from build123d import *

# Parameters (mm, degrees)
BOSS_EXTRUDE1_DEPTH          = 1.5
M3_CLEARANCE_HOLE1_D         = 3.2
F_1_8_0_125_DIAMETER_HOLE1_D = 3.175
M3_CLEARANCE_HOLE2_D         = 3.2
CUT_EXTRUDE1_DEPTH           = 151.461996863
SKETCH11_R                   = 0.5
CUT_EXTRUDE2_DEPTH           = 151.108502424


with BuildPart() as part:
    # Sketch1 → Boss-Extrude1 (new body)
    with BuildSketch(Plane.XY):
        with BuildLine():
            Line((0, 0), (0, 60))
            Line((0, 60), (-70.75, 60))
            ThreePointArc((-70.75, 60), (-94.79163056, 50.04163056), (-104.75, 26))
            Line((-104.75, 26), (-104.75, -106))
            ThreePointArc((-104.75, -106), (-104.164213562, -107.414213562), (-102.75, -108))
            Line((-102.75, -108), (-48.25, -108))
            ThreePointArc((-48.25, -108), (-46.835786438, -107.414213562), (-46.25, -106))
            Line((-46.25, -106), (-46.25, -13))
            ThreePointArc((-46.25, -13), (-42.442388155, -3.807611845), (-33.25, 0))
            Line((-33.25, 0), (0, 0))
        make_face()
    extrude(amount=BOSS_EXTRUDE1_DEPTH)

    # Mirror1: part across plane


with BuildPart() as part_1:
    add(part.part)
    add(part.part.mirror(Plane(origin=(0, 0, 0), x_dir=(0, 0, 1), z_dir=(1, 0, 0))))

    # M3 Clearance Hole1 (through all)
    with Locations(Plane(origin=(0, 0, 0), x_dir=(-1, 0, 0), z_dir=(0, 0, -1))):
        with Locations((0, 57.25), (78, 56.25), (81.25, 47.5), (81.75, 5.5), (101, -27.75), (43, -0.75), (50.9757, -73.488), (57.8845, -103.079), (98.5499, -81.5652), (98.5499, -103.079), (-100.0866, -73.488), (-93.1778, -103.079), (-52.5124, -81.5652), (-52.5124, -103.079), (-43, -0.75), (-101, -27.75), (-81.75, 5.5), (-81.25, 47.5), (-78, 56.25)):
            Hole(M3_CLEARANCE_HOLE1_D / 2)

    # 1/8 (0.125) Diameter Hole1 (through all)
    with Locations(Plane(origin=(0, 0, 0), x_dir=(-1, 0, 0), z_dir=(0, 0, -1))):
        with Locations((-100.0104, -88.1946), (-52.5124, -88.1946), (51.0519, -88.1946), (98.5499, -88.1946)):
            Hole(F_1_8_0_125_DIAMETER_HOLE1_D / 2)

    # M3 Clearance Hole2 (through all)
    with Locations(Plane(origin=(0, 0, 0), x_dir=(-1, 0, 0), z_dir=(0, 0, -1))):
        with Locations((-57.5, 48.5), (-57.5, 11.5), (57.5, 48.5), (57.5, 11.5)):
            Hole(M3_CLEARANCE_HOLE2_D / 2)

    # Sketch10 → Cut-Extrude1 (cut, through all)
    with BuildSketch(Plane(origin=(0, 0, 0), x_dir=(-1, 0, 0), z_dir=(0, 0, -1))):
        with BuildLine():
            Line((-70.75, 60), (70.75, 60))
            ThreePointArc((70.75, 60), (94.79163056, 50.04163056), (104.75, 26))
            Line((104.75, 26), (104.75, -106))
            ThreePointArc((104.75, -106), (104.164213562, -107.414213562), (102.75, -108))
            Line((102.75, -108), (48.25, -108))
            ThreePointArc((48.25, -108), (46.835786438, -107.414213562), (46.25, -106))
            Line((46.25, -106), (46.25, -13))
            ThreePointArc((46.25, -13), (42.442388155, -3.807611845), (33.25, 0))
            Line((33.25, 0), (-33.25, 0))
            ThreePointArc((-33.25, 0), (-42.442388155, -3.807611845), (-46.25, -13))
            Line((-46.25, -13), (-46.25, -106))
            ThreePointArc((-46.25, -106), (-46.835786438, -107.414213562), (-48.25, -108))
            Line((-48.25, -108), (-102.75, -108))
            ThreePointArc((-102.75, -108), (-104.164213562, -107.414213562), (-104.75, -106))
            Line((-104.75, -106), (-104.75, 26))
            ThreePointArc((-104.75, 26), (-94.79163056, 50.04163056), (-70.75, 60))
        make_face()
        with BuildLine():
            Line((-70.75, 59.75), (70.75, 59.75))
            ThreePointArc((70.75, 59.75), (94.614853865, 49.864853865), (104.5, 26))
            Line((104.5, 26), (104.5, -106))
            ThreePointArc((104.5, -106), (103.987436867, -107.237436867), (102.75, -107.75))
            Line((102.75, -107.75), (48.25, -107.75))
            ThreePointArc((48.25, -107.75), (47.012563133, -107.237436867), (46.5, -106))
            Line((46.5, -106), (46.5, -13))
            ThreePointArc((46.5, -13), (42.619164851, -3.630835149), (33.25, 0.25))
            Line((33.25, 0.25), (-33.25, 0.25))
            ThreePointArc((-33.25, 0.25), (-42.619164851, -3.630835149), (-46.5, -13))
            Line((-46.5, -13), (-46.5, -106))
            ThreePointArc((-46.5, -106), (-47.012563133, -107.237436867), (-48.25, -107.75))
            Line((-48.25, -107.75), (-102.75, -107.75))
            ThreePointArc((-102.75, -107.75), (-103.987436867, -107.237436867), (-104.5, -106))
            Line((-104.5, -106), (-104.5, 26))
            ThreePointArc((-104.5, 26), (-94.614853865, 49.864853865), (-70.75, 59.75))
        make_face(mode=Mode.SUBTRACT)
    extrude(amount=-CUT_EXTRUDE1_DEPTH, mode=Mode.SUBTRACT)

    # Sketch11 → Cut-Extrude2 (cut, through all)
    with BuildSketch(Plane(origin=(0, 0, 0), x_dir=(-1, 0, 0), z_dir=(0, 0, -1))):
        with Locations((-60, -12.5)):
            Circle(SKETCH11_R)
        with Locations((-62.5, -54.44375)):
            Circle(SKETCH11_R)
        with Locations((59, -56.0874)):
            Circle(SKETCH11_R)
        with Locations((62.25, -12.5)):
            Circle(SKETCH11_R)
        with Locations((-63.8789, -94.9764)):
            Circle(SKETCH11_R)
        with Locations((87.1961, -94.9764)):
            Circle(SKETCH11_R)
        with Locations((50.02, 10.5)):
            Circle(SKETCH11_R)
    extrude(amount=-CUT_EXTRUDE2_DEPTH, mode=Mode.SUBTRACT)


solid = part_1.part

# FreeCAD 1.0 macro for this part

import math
import FreeCAD as App
import Part
import Sketcher

V = App.Vector

doc = App.newDocument("Part")
body = doc.addObject("PartDesign::Body", "Body")

# Sketch on XY plane
sketch1 = doc.addObject("Sketcher::SketchObject", "Sketch")
body.addObject(sketch1)
sketch1.AttachmentSupport = (doc.XY_Plane, [""])
sketch1.MapMode = "FlatFace"
sketch1.addGeometry(Part.LineSegment(V(0, 0, 0), V(0, 60, 0)), False)
sketch1.addGeometry(Part.LineSegment(V(0, 60, 0), V(-70.8, 60, 0)), False)
sketch1.addGeometry(Part.ArcOfCircle(Part.Circle(V(-70.7, 26, 0), V(0, 0, 1), 34), math.radians(90), math.radians(180)), False)
sketch1.addGeometry(Part.LineSegment(V(-104.8, 26, 0), V(-104.8, -106, 0)), False)
sketch1.addGeometry(Part.ArcOfCircle(Part.Circle(V(-102.7, -106, 0), V(0, 0, 1), 2), math.radians(-180), math.radians(-90)), False)
sketch1.addGeometry(Part.LineSegment(V(-102.8, -108, 0), V(-48.2, -108, 0)), False)
sketch1.addGeometry(Part.ArcOfCircle(Part.Circle(V(-48.3, -106, 0), V(0, 0, 1), 2), math.radians(-90), math.radians(0)), False)
sketch1.addGeometry(Part.LineSegment(V(-46.2, -106, 0), V(-46.2, -13, 0)), False)
sketch1.addGeometry(Part.ArcOfCircle(Part.Circle(V(-33.2, -13, 0), V(0, 0, 1), 13), math.radians(90), math.radians(180)), False)
sketch1.addGeometry(Part.LineSegment(V(-33.2, 0, 0), V(0, 0, 0)), False)
sketch1.addConstraint(Sketcher.Constraint("Coincident", 0, 2, 1, 1))
sketch1.addConstraint(Sketcher.Constraint("Tangent", 1, 2, 2, 1))
sketch1.addConstraint(Sketcher.Constraint("Tangent", 2, 2, 3, 1))
sketch1.addConstraint(Sketcher.Constraint("Tangent", 3, 2, 4, 1))
sketch1.addConstraint(Sketcher.Constraint("Tangent", 4, 2, 5, 1))
sketch1.addConstraint(Sketcher.Constraint("Tangent", 5, 2, 6, 1))
sketch1.addConstraint(Sketcher.Constraint("Tangent", 6, 2, 7, 1))
sketch1.addConstraint(Sketcher.Constraint("Tangent", 7, 2, 8, 2))
sketch1.addConstraint(Sketcher.Constraint("Tangent", 8, 1, 9, 1))
sketch1.addConstraint(Sketcher.Constraint("Coincident", 9, 2, 0, 1))
sketch1.addConstraint(Sketcher.Constraint("Vertical", 0))
sketch1.addConstraint(Sketcher.Constraint("Horizontal", 1))
sketch1.addConstraint(Sketcher.Constraint("Vertical", 3))
sketch1.addConstraint(Sketcher.Constraint("Horizontal", 5))
sketch1.addConstraint(Sketcher.Constraint("Vertical", 7))
sketch1.addConstraint(Sketcher.Constraint("Horizontal", 9))
sketch1.addConstraint(Sketcher.Constraint("Coincident", 9, 2, -1, 1))
sketch1.addConstraint(Sketcher.Constraint("Equal", 4, 6))
sketch1.addConstraint(Sketcher.Constraint("Radius", 2, 34.0))
sketch1.addConstraint(Sketcher.Constraint("Radius", 4, 2.0))
sketch1.addConstraint(Sketcher.Constraint("Radius", 8, 13.0))
sketch1.addConstraint(Sketcher.Constraint("DistanceY", 0, 1, 0, 2, 60.0))
sketch1.addConstraint(Sketcher.Constraint("DistanceY", 3, 2, 3, 1, 132.0))
sketch1.addConstraint(Sketcher.Constraint("DistanceX", 5, 1, 5, 2, 54.5))
sketch1.addConstraint(Sketcher.Constraint("DistanceX", 1, 2, 1, 1, 70.75))
pad1 = doc.addObject("PartDesign::Pad", "Pad")
body.addObject(pad1)
pad1.Profile = sketch1
pad1.Length = 1.5
body2 = doc.addObject("PartDesign::Body", "Body001")
doc.recompute()

body2.BaseFeature = body
doc.recompute()

mirroring = doc.addObject("Part::Mirroring", "Mirroring")
mirroring.Source = body
mirroring.Base = V(0, 0, 0)
mirroring.Normal = V(1, 0, 0)
body3 = doc.addObject("PartDesign::Body", "Body002")
body3.BaseFeature = mirroring
boolean = doc.addObject("PartDesign::Boolean", "Boolean")
body2.addObject(boolean)
boolean.Type = "Fuse"
boolean.addObjects([body3])
doc.recompute()

# Sketch on XY plane
sketch2 = doc.addObject("Sketcher::SketchObject", "Sketch001")
body2.addObject(sketch2)
sketch2.AttachmentSupport = (doc.getObject("XY_Plane001"), [""])
sketch2.MapMode = "FlatFace"
sketch2.addGeometry(Part.Circle(V(0, 57.2, 0), V(0, 0, 1), 1.6), False)
sketch2.addGeometry(Part.Circle(V(-78, 56.2, 0), V(0, 0, 1), 1.6), False)
sketch2.addGeometry(Part.Circle(V(-81.2, 47.5, 0), V(0, 0, 1), 1.6), False)
sketch2.addGeometry(Part.Circle(V(-81.8, 5.5, 0), V(0, 0, 1), 1.6), False)
sketch2.addGeometry(Part.Circle(V(-101, -27.8, 0), V(0, 0, 1), 1.6), False)
sketch2.addGeometry(Part.Circle(V(-43, -0.8, 0), V(0, 0, 1), 1.6), False)
sketch2.addGeometry(Part.Circle(V(-51, -73.5, 0), V(0, 0, 1), 1.6), False)
sketch2.addGeometry(Part.Circle(V(-57.9, -103.1, 0), V(0, 0, 1), 1.6), False)
sketch2.addGeometry(Part.Circle(V(-98.5, -81.6, 0), V(0, 0, 1), 1.6), False)
sketch2.addGeometry(Part.Circle(V(-98.5, -103.1, 0), V(0, 0, 1), 1.6), False)
sketch2.addGeometry(Part.Circle(V(100.1, -73.5, 0), V(0, 0, 1), 1.6), False)
sketch2.addGeometry(Part.Circle(V(93.2, -103.1, 0), V(0, 0, 1), 1.6), False)
sketch2.addGeometry(Part.Circle(V(52.5, -81.6, 0), V(0, 0, 1), 1.6), False)
sketch2.addGeometry(Part.Circle(V(52.5, -103.1, 0), V(0, 0, 1), 1.6), False)
sketch2.addGeometry(Part.Circle(V(43, -0.8, 0), V(0, 0, 1), 1.6), False)
sketch2.addGeometry(Part.Circle(V(101, -27.8, 0), V(0, 0, 1), 1.6), False)
sketch2.addGeometry(Part.Circle(V(81.8, 5.5, 0), V(0, 0, 1), 1.6), False)
sketch2.addGeometry(Part.Circle(V(81.2, 47.5, 0), V(0, 0, 1), 1.6), False)
sketch2.addGeometry(Part.Circle(V(78, 56.2, 0), V(0, 0, 1), 1.6), False)
sketch2.addConstraint(Sketcher.Constraint("Equal", 0, 1))
sketch2.addConstraint(Sketcher.Constraint("Equal", 1, 2))
sketch2.addConstraint(Sketcher.Constraint("Equal", 2, 3))
sketch2.addConstraint(Sketcher.Constraint("Equal", 3, 4))
sketch2.addConstraint(Sketcher.Constraint("Equal", 4, 5))
sketch2.addConstraint(Sketcher.Constraint("Equal", 5, 6))
sketch2.addConstraint(Sketcher.Constraint("Equal", 6, 7))
sketch2.addConstraint(Sketcher.Constraint("Equal", 7, 8))
sketch2.addConstraint(Sketcher.Constraint("Equal", 8, 9))
sketch2.addConstraint(Sketcher.Constraint("Equal", 9, 10))
sketch2.addConstraint(Sketcher.Constraint("Equal", 10, 11))
sketch2.addConstraint(Sketcher.Constraint("Equal", 11, 12))
sketch2.addConstraint(Sketcher.Constraint("Equal", 12, 13))
sketch2.addConstraint(Sketcher.Constraint("Equal", 13, 14))
sketch2.addConstraint(Sketcher.Constraint("Equal", 14, 15))
sketch2.addConstraint(Sketcher.Constraint("Equal", 15, 16))
sketch2.addConstraint(Sketcher.Constraint("Equal", 16, 17))
sketch2.addConstraint(Sketcher.Constraint("Equal", 17, 18))
sketch2.addConstraint(Sketcher.Constraint("Symmetric", 5, 3, 14, 3, -2))
sketch2.addConstraint(Sketcher.Constraint("Symmetric", 4, 3, 15, 3, -2))
sketch2.addConstraint(Sketcher.Constraint("Symmetric", 3, 3, 16, 3, -2))
sketch2.addConstraint(Sketcher.Constraint("Symmetric", 2, 3, 17, 3, -2))
sketch2.addConstraint(Sketcher.Constraint("Symmetric", 1, 3, 18, 3, -2))
sketch2.addConstraint(Sketcher.Constraint("PointOnObject", 0, 3, -2))
sketch2.addConstraint(Sketcher.Constraint("Horizontal", 7, 3, 9, 3))
sketch2.addConstraint(Sketcher.Constraint("Horizontal", 6, 3, 10, 3))
sketch2.addConstraint(Sketcher.Constraint("Horizontal", 9, 3, 11, 3))
sketch2.addConstraint(Sketcher.Constraint("Horizontal", 8, 3, 12, 3))
sketch2.addConstraint(Sketcher.Constraint("Horizontal", 11, 3, 13, 3))
sketch2.addConstraint(Sketcher.Constraint("Vertical", 8, 3, 9, 3))
sketch2.addConstraint(Sketcher.Constraint("Vertical", 12, 3, 13, 3))
sketch2.addConstraint(Sketcher.Constraint("Diameter", 0, 3.2))
sketch2.addConstraint(Sketcher.Constraint("DistanceX", 1, 3, -1, 1, 78.0))
sketch2.addConstraint(Sketcher.Constraint("DistanceX", 4, 3, -1, 1, 101.0))
sketch2.addConstraint(Sketcher.Constraint("DistanceX", 5, 3, -1, 1, 43.0))
sketch2.addConstraint(Sketcher.Constraint("DistanceY", 1, 3, 0, 3, 1.0))
sketch2.addConstraint(Sketcher.Constraint("DistanceY", 3, 3, 2, 3, 42.0))
sketch2.addConstraint(Sketcher.Constraint("DistanceY", 4, 3, 1, 3, 84.0))
sketch2.addConstraint(Sketcher.Constraint("DistanceY", 4, 3, 5, 3, 27.0))
sketch2.addConstraint(Sketcher.Constraint("DistanceY", -1, 1, 2, 3, 47.5))
sketch2.addConstraint(Sketcher.Constraint("DistanceX", 3, 3, 2, 3, 0.5))
sketch2.addConstraint(Sketcher.Constraint("DistanceY", -1, 1, 0, 3, 57.25))
sketch2.addConstraint(Sketcher.Constraint("DistanceX", 2, 3, -1, 1, 81.25))
sketch2.addConstraint(Sketcher.Constraint("DistanceY", 6, 3, -1, 1, 73.488))
sketch2.addConstraint(Sketcher.Constraint("DistanceY", 7, 3, -1, 1, 103.079))
sketch2.addConstraint(Sketcher.Constraint("DistanceX", 6, 3, -1, 1, 50.9757))
sketch2.addConstraint(Sketcher.Constraint("DistanceX", 7, 3, -1, 1, 57.8845))
sketch2.addConstraint(Sketcher.Constraint("DistanceX", 8, 3, -1, 1, 98.5499))
sketch2.addConstraint(Sketcher.Constraint("DistanceY", 8, 3, -1, 1, 81.5652))
sketch2.addConstraint(Sketcher.Constraint("DistanceX", -1, 1, 10, 3, 100.0866))
sketch2.addConstraint(Sketcher.Constraint("DistanceX", -1, 1, 11, 3, 93.1778))
sketch2.addConstraint(Sketcher.Constraint("DistanceX", -1, 1, 12, 3, 52.5124))
doc.recompute()
hole = doc.addObject("PartDesign::Hole", "Hole")
body2.addObject(hole)
hole.Profile = sketch2
hole.ThreadType = "None"
hole.Diameter = 3.2
hole.DepthType = "ThroughAll"
hole.Reversed = True

# Sketch on XY plane
sketch3 = doc.addObject("Sketcher::SketchObject", "Sketch002")
body2.addObject(sketch3)
sketch3.AttachmentSupport = (doc.getObject("XY_Plane001"), [""])
sketch3.MapMode = "FlatFace"
sketch3.addGeometry(Part.Circle(V(100, -88.2, 0), V(0, 0, 1), 1.6), False)
sketch3.addGeometry(Part.Circle(V(52.5, -88.2, 0), V(0, 0, 1), 1.6), False)
sketch3.addGeometry(Part.Circle(V(-51.1, -88.2, 0), V(0, 0, 1), 1.6), False)
sketch3.addGeometry(Part.Circle(V(-98.5, -88.2, 0), V(0, 0, 1), 1.6), False)
sketch3.addConstraint(Sketcher.Constraint("Equal", 0, 1))
sketch3.addConstraint(Sketcher.Constraint("Equal", 1, 2))
sketch3.addConstraint(Sketcher.Constraint("Equal", 2, 3))
sketch3.addConstraint(Sketcher.Constraint("Horizontal", 0, 3, 1, 3))
sketch3.addConstraint(Sketcher.Constraint("Horizontal", 1, 3, 2, 3))
sketch3.addConstraint(Sketcher.Constraint("Horizontal", 2, 3, 3, 3))
sketch3.addConstraint(Sketcher.Constraint("Diameter", 0, 3.175))
sketch3.addConstraint(Sketcher.Constraint("DistanceX", 1, 3, 0, 3, 47.498))
sketch3.addConstraint(Sketcher.Constraint("DistanceX", 3, 3, 2, 3, 47.498))
sketch3.addConstraint(Sketcher.Constraint("DistanceX", -1, 1, 0, 3, 100.0104))
sketch3.addConstraint(Sketcher.Constraint("DistanceY", 0, 3, -1, 1, 88.1946))
sketch3.addConstraint(Sketcher.Constraint("DistanceX", 2, 3, -1, 1, 51.0519))
doc.recompute()
hole2 = doc.addObject("PartDesign::Hole", "Hole001")
body2.addObject(hole2)
hole2.Profile = sketch3
hole2.ThreadType = "None"
hole2.Diameter = 3.175
hole2.DepthType = "ThroughAll"
hole2.Reversed = True

# Sketch on XY plane
sketch4 = doc.addObject("Sketcher::SketchObject", "Sketch003")
body2.addObject(sketch4)
sketch4.AttachmentSupport = (doc.getObject("XY_Plane001"), [""])
sketch4.MapMode = "FlatFace"
sketch4.addGeometry(Part.Circle(V(57.5, 48.5, 0), V(0, 0, 1), 1.6), False)
sketch4.addGeometry(Part.Circle(V(57.5, 11.5, 0), V(0, 0, 1), 1.6), False)
sketch4.addGeometry(Part.Circle(V(-57.5, 48.5, 0), V(0, 0, 1), 1.6), False)
sketch4.addGeometry(Part.Circle(V(-57.5, 11.5, 0), V(0, 0, 1), 1.6), False)
sketch4.addConstraint(Sketcher.Constraint("Equal", 0, 1))
sketch4.addConstraint(Sketcher.Constraint("Equal", 1, 2))
sketch4.addConstraint(Sketcher.Constraint("Equal", 2, 3))
sketch4.addConstraint(Sketcher.Constraint("Symmetric", 0, 3, 2, 3, -2))
sketch4.addConstraint(Sketcher.Constraint("Symmetric", 1, 3, 3, 3, -2))
sketch4.addConstraint(Sketcher.Constraint("Vertical", 0, 3, 1, 3))
sketch4.addConstraint(Sketcher.Constraint("Diameter", 0, 3.2))
sketch4.addConstraint(Sketcher.Constraint("DistanceY", 1, 3, 0, 3, 37.0))
sketch4.addConstraint(Sketcher.Constraint("DistanceX", 2, 3, 0, 3, 115.0))
sketch4.addConstraint(Sketcher.Constraint("DistanceY", -1, 1, 0, 3, 48.5))
doc.recompute()
hole3 = doc.addObject("PartDesign::Hole", "Hole002")
body2.addObject(hole3)
hole3.Profile = sketch4
hole3.ThreadType = "None"
hole3.Diameter = 3.2
hole3.DepthType = "ThroughAll"
hole3.Reversed = True

# Sketch on XY plane
sketch5 = doc.addObject("Sketcher::SketchObject", "Sketch004")
body2.addObject(sketch5)
sketch5.AttachmentSupport = (doc.getObject("XY_Plane001"), [""])
sketch5.MapMode = "FlatFace"
sketch5.addGeometry(Part.LineSegment(V(-70.8, 60, 0), V(70.8, 60, 0)), False)
sketch5.addGeometry(Part.ArcOfCircle(Part.Circle(V(70.7, 26, 0), V(0, 0, 1), 34), math.radians(0), math.radians(90)), False)
sketch5.addGeometry(Part.LineSegment(V(104.8, 26, 0), V(104.8, -106, 0)), False)
sketch5.addGeometry(Part.ArcOfCircle(Part.Circle(V(102.7, -106, 0), V(0, 0, 1), 2), math.radians(-90), math.radians(0)), False)
sketch5.addGeometry(Part.LineSegment(V(102.8, -108, 0), V(48.2, -108, 0)), False)
sketch5.addGeometry(Part.ArcOfCircle(Part.Circle(V(48.3, -106, 0), V(0, 0, 1), 2), math.radians(-180), math.radians(-90)), False)
sketch5.addGeometry(Part.LineSegment(V(46.2, -106, 0), V(46.2, -13, 0)), False)
sketch5.addGeometry(Part.ArcOfCircle(Part.Circle(V(33.2, -13, 0), V(0, 0, 1), 13), math.radians(0), math.radians(90)), False)
sketch5.addGeometry(Part.LineSegment(V(33.2, 0, 0), V(-33.2, 0, 0)), False)
sketch5.addGeometry(Part.ArcOfCircle(Part.Circle(V(-33.2, -13, 0), V(0, 0, 1), 13), math.radians(90), math.radians(180)), False)
sketch5.addGeometry(Part.LineSegment(V(-46.2, -13, 0), V(-46.2, -106, 0)), False)
sketch5.addGeometry(Part.ArcOfCircle(Part.Circle(V(-48.3, -106, 0), V(0, 0, 1), 2), math.radians(-90), math.radians(0)), False)
sketch5.addGeometry(Part.LineSegment(V(-48.2, -108, 0), V(-102.8, -108, 0)), False)
sketch5.addGeometry(Part.ArcOfCircle(Part.Circle(V(-102.7, -106, 0), V(0, 0, 1), 2), math.radians(-180), math.radians(-90)), False)
sketch5.addGeometry(Part.LineSegment(V(-104.8, -106, 0), V(-104.8, 26, 0)), False)
sketch5.addGeometry(Part.ArcOfCircle(Part.Circle(V(-70.7, 26, 0), V(0, 0, 1), 34), math.radians(90), math.radians(180)), False)
sketch5.addGeometry(Part.LineSegment(V(70.8, 59.8, 0), V(-70.8, 59.8, 0)), False)
sketch5.addGeometry(Part.ArcOfCircle(Part.Circle(V(-70.8, 26, 0), V(0, 0, 1), 33.8), math.radians(90), math.radians(180)), False)
sketch5.addGeometry(Part.LineSegment(V(-104.5, 26, 0), V(-104.5, -106, 0)), False)
sketch5.addGeometry(Part.ArcOfCircle(Part.Circle(V(-102.8, -106, 0), V(0, 0, 1), 1.8), math.radians(180), math.radians(270)), False)
sketch5.addGeometry(Part.LineSegment(V(-102.8, -107.8, 0), V(-48.2, -107.8, 0)), False)
sketch5.addGeometry(Part.ArcOfCircle(Part.Circle(V(-48.2, -106, 0), V(0, 0, 1), 1.8), math.radians(-90), math.radians(0)), False)
sketch5.addGeometry(Part.LineSegment(V(-46.5, -106, 0), V(-46.5, -13, 0)), False)
sketch5.addGeometry(Part.ArcOfCircle(Part.Circle(V(-33.3, -13, 0), V(0, 0, 1), 13.2), math.radians(90), math.radians(180)), False)
sketch5.addGeometry(Part.LineSegment(V(-33.2, 0.2, 0), V(33.2, 0.2, 0)), False)
sketch5.addGeometry(Part.ArcOfCircle(Part.Circle(V(33.3, -13, 0), V(0, 0, 1), 13.2), math.radians(0), math.radians(90)), False)
sketch5.addGeometry(Part.LineSegment(V(46.5, -13, 0), V(46.5, -106, 0)), False)
sketch5.addGeometry(Part.ArcOfCircle(Part.Circle(V(48.2, -106, 0), V(0, 0, 1), 1.8), math.radians(180), math.radians(270)), False)
sketch5.addGeometry(Part.LineSegment(V(48.2, -107.8, 0), V(102.8, -107.8, 0)), False)
sketch5.addGeometry(Part.ArcOfCircle(Part.Circle(V(102.8, -106, 0), V(0, 0, 1), 1.8), math.radians(-90), math.radians(0)), False)
sketch5.addGeometry(Part.LineSegment(V(104.5, -106, 0), V(104.5, 26, 0)), False)
sketch5.addGeometry(Part.ArcOfCircle(Part.Circle(V(70.8, 26, 0), V(0, 0, 1), 33.8), math.radians(0), math.radians(90)), False)
sketch5.addConstraint(Sketcher.Constraint("Tangent", 0, 2, 1, 2))
sketch5.addConstraint(Sketcher.Constraint("Tangent", 1, 1, 2, 1))
sketch5.addConstraint(Sketcher.Constraint("Tangent", 2, 2, 3, 2))
sketch5.addConstraint(Sketcher.Constraint("Tangent", 3, 1, 4, 1))
sketch5.addConstraint(Sketcher.Constraint("Tangent", 4, 2, 5, 2))
sketch5.addConstraint(Sketcher.Constraint("Tangent", 5, 1, 6, 1))
sketch5.addConstraint(Sketcher.Constraint("Tangent", 6, 2, 7, 1))
sketch5.addConstraint(Sketcher.Constraint("Tangent", 7, 2, 8, 1))
sketch5.addConstraint(Sketcher.Constraint("Tangent", 8, 2, 9, 1))
sketch5.addConstraint(Sketcher.Constraint("Tangent", 9, 2, 10, 1))
sketch5.addConstraint(Sketcher.Constraint("Tangent", 10, 2, 11, 2))
sketch5.addConstraint(Sketcher.Constraint("Tangent", 11, 1, 12, 1))
sketch5.addConstraint(Sketcher.Constraint("Tangent", 12, 2, 13, 2))
sketch5.addConstraint(Sketcher.Constraint("Tangent", 13, 1, 14, 1))
sketch5.addConstraint(Sketcher.Constraint("Tangent", 14, 2, 15, 2))
sketch5.addConstraint(Sketcher.Constraint("Tangent", 15, 1, 0, 1))
sketch5.addConstraint(Sketcher.Constraint("Tangent", 16, 2, 17, 1))
sketch5.addConstraint(Sketcher.Constraint("Tangent", 17, 2, 18, 1))
sketch5.addConstraint(Sketcher.Constraint("Tangent", 18, 2, 19, 1))
sketch5.addConstraint(Sketcher.Constraint("Tangent", 19, 2, 20, 1))
sketch5.addConstraint(Sketcher.Constraint("Tangent", 20, 2, 21, 1))
sketch5.addConstraint(Sketcher.Constraint("Tangent", 21, 2, 22, 1))
sketch5.addConstraint(Sketcher.Constraint("Tangent", 22, 2, 23, 2))
sketch5.addConstraint(Sketcher.Constraint("Tangent", 23, 1, 24, 1))
sketch5.addConstraint(Sketcher.Constraint("Tangent", 24, 2, 25, 2))
sketch5.addConstraint(Sketcher.Constraint("Tangent", 25, 1, 26, 1))
sketch5.addConstraint(Sketcher.Constraint("Tangent", 26, 2, 27, 1))
sketch5.addConstraint(Sketcher.Constraint("Tangent", 27, 2, 28, 1))
sketch5.addConstraint(Sketcher.Constraint("Tangent", 28, 2, 29, 1))
sketch5.addConstraint(Sketcher.Constraint("Tangent", 29, 2, 30, 1))
sketch5.addConstraint(Sketcher.Constraint("Tangent", 30, 2, 31, 1))
sketch5.addConstraint(Sketcher.Constraint("Tangent", 31, 2, 16, 1))
sketch5.addConstraint(Sketcher.Constraint("Horizontal", 0))
sketch5.addConstraint(Sketcher.Constraint("Vertical", 2))
sketch5.addConstraint(Sketcher.Constraint("Horizontal", 4))
sketch5.addConstraint(Sketcher.Constraint("Vertical", 6))
sketch5.addConstraint(Sketcher.Constraint("Horizontal", 8))
sketch5.addConstraint(Sketcher.Constraint("Vertical", 10))
sketch5.addConstraint(Sketcher.Constraint("Horizontal", 12))
sketch5.addConstraint(Sketcher.Constraint("Vertical", 14))
sketch5.addConstraint(Sketcher.Constraint("Horizontal", 16))
sketch5.addConstraint(Sketcher.Constraint("Vertical", 18))
sketch5.addConstraint(Sketcher.Constraint("Horizontal", 20))
sketch5.addConstraint(Sketcher.Constraint("Vertical", 22))
sketch5.addConstraint(Sketcher.Constraint("Horizontal", 24))
sketch5.addConstraint(Sketcher.Constraint("Vertical", 26))
sketch5.addConstraint(Sketcher.Constraint("Horizontal", 28))
sketch5.addConstraint(Sketcher.Constraint("Vertical", 30))
sketch5.addConstraint(Sketcher.Constraint("Coincident", 17, 3, 15, 3))
sketch5.addConstraint(Sketcher.Constraint("Coincident", 19, 3, 13, 3))
sketch5.addConstraint(Sketcher.Constraint("Coincident", 21, 3, 11, 3))
sketch5.addConstraint(Sketcher.Constraint("Coincident", 23, 3, 9, 3))
sketch5.addConstraint(Sketcher.Constraint("Coincident", 25, 3, 7, 3))
sketch5.addConstraint(Sketcher.Constraint("Coincident", 27, 3, 5, 3))
sketch5.addConstraint(Sketcher.Constraint("Coincident", 29, 3, 3, 3))
sketch5.addConstraint(Sketcher.Constraint("Equal", 3, 5))
sketch5.addConstraint(Sketcher.Constraint("Equal", 7, 9))
sketch5.addConstraint(Sketcher.Constraint("Equal", 5, 11))
sketch5.addConstraint(Sketcher.Constraint("Equal", 11, 13))
sketch5.addConstraint(Sketcher.Constraint("Equal", 1, 15))
sketch5.addConstraint(Sketcher.Constraint("Equal", 17, 31))
sketch5.addConstraint(Sketcher.Constraint("Symmetric", 7, 2, 8, 2, -1, 1))
sketch5.addConstraint(Sketcher.Constraint("Symmetric", 3, 3, 13, 3, -2))
sketch5.addConstraint(Sketcher.Constraint("Radius", 1, 34.0))
sketch5.addConstraint(Sketcher.Constraint("Radius", 3, 2.0))
sketch5.addConstraint(Sketcher.Constraint("Radius", 7, 13.0))
sketch5.addConstraint(Sketcher.Constraint("DistanceY", 2, 2, 2, 1, 132.0))
sketch5.addConstraint(Sketcher.Constraint("DistanceY", 6, 1, 6, 2, 93.0))
sketch5.addConstraint(Sketcher.Constraint("Radius", 17, 33.75))
sketch5.addConstraint(Sketcher.Constraint("DistanceX", 0, 1, 0, 2, 141.5))
sketch5.addConstraint(Sketcher.Constraint("DistanceX", 4, 2, 4, 1, 54.5))
pocket1 = doc.addObject("PartDesign::Pocket", "Pocket")
body2.addObject(pocket1)
pocket1.Profile = sketch5
pocket1.Type = "ThroughAll"
pocket1.Reversed = True

# Sketch on XY plane
sketch6 = doc.addObject("Sketcher::SketchObject", "Sketch005")
body2.addObject(sketch6)
sketch6.AttachmentSupport = (doc.getObject("XY_Plane001"), [""])
sketch6.MapMode = "FlatFace"
sketch6.addGeometry(Part.Circle(V(60, -12.5, 0), V(0, 0, 1), 0.5), False)
sketch6.addGeometry(Part.Circle(V(62.5, -54.4, 0), V(0, 0, 1), 0.5), False)
sketch6.addGeometry(Part.Circle(V(-59, -56.1, 0), V(0, 0, 1), 0.5), False)
sketch6.addGeometry(Part.Circle(V(-62.2, -12.5, 0), V(0, 0, 1), 0.5), False)
sketch6.addGeometry(Part.Circle(V(63.9, -95, 0), V(0, 0, 1), 0.5), False)
sketch6.addGeometry(Part.Circle(V(-87.2, -95, 0), V(0, 0, 1), 0.5), False)
sketch6.addGeometry(Part.Circle(V(-50, 10.5, 0), V(0, 0, 1), 0.5), False)
sketch6.addConstraint(Sketcher.Constraint("Equal", 0, 1))
sketch6.addConstraint(Sketcher.Constraint("Equal", 1, 2))
sketch6.addConstraint(Sketcher.Constraint("Equal", 2, 3))
sketch6.addConstraint(Sketcher.Constraint("Equal", 3, 4))
sketch6.addConstraint(Sketcher.Constraint("Equal", 4, 5))
sketch6.addConstraint(Sketcher.Constraint("Equal", 5, 6))
sketch6.addConstraint(Sketcher.Constraint("Horizontal", 0, 3, 3, 3))
sketch6.addConstraint(Sketcher.Constraint("Horizontal", 4, 3, 5, 3))
sketch6.addConstraint(Sketcher.Constraint("Diameter", 0, 1.0))
sketch6.addConstraint(Sketcher.Constraint("DistanceX", -1, 1, 0, 3, 60.0))
sketch6.addConstraint(Sketcher.Constraint("DistanceX", 2, 3, -1, 1, 59.0))
sketch6.addConstraint(Sketcher.Constraint("DistanceY", 3, 3, 6, 3, 23.0))
sketch6.addConstraint(Sketcher.Constraint("DistanceY", 0, 3, -1, 1, 12.5))
sketch6.addConstraint(Sketcher.Constraint("DistanceX", -1, 1, 1, 3, 62.5))
sketch6.addConstraint(Sketcher.Constraint("DistanceX", 3, 3, -1, 1, 62.25))
sketch6.addConstraint(Sketcher.Constraint("DistanceX", 6, 3, -1, 1, 50.02))
sketch6.addConstraint(Sketcher.Constraint("DistanceY", 4, 3, 2, 3, 38.889))
sketch6.addConstraint(Sketcher.Constraint("DistanceX", 5, 3, 4, 3, 151.075))
sketch6.addConstraint(Sketcher.Constraint("DistanceY", 2, 3, -1, 1, 56.0874))
sketch6.addConstraint(Sketcher.Constraint("DistanceX", -1, 1, 4, 3, 63.8789))
sketch6.addConstraint(Sketcher.Constraint("DistanceY", 1, 3, -1, 1, 54.44375))
pocket2 = doc.addObject("PartDesign::Pocket", "Pocket001")
body2.addObject(pocket2)
pocket2.Profile = sketch6
pocket2.Type = "ThroughAll"
pocket2.Reversed = True
mirroring.Visibility = False

doc.recompute()
